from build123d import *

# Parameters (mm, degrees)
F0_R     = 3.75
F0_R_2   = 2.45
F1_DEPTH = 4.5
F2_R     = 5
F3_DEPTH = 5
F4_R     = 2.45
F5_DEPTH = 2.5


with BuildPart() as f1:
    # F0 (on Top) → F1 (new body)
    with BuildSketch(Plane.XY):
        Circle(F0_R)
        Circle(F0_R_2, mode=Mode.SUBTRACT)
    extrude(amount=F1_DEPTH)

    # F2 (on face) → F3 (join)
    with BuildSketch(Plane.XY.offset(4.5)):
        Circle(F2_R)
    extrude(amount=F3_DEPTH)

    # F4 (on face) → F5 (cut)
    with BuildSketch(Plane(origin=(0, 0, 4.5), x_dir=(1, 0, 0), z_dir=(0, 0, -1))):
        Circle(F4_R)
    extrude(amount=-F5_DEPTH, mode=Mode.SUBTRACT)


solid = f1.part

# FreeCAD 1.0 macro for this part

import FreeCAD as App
import Part
import Sketcher

V = App.Vector
Q = App.Units.Quantity

doc = App.newDocument("Part")
body = doc.addObject("PartDesign::Body", "Body")

# Sketch on XY plane
sketch1 = body.newObject("Sketcher::SketchObject", "Sketch")
sketch1.AttachmentSupport = (doc.getObject("XY_Plane"), [""])
sketch1.MapMode = "FlatFace"
sketch1.addGeometry(Part.Circle(V(0, 0, 0), V(0, 0, 1), 3.8), False)
sketch1.addGeometry(Part.Circle(V(0, 0, 0), V(0, 0, 1), 2.5), False)
sketch1.addConstraint(Sketcher.Constraint("Coincident", 0, 3, -1, 1))
sketch1.addConstraint(Sketcher.Constraint("Coincident", 1, 3, -1, 1))
sketch1.addConstraint(Sketcher.Constraint("Diameter", 0, Q("7.5 mm")))
sketch1.addConstraint(Sketcher.Constraint("Diameter", 1, Q("4.9 mm")))
pad1 = body.newObject("PartDesign::Pad", "Pad")
pad1.Profile = sketch1
pad1.Length = 4.5

# Sketch on XY plane
sketch2 = body.newObject("Sketcher::SketchObject", "Sketch001")
sketch2.AttachmentSupport = (doc.getObject("XY_Plane"), [""])
sketch2.MapMode = "FlatFace"
sketch2.AttachmentOffset = App.Placement(V(0, 0, 4.5), App.Rotation())
sketch2.addGeometry(Part.Circle(V(0, 0, 0), V(0, 0, 1), 5), False)
sketch2.addConstraint(Sketcher.Constraint("Coincident", 0, 3, -1, 1))
sketch2.addConstraint(Sketcher.Constraint("Diameter", 0, Q("10 mm")))
pad2 = body.newObject("PartDesign::Pad", "Pad001")
pad2.Profile = sketch2
pad2.Length = 5

# Sketch on XY plane
sketch3 = body.newObject("Sketcher::SketchObject", "Sketch002")
sketch3.AttachmentSupport = (doc.getObject("XY_Plane"), [""])
sketch3.MapMode = "FlatFace"
sketch3.AttachmentOffset = App.Placement(V(0, 0, 4.5), App.Rotation())
sketch3.addGeometry(Part.Circle(V(0, 0, 0), V(0, 0, 1), 2.5), False)
sketch3.addConstraint(Sketcher.Constraint("Coincident", 0, 3, -1, 1))
sketch3.addConstraint(Sketcher.Constraint("Diameter", 0, Q("4.9 mm")))
pocket1 = body.newObject("PartDesign::Pocket", "Pocket")
pocket1.Profile = sketch3
pocket1.Length = 2.5
pocket1.Reversed = True

doc.recompute()
